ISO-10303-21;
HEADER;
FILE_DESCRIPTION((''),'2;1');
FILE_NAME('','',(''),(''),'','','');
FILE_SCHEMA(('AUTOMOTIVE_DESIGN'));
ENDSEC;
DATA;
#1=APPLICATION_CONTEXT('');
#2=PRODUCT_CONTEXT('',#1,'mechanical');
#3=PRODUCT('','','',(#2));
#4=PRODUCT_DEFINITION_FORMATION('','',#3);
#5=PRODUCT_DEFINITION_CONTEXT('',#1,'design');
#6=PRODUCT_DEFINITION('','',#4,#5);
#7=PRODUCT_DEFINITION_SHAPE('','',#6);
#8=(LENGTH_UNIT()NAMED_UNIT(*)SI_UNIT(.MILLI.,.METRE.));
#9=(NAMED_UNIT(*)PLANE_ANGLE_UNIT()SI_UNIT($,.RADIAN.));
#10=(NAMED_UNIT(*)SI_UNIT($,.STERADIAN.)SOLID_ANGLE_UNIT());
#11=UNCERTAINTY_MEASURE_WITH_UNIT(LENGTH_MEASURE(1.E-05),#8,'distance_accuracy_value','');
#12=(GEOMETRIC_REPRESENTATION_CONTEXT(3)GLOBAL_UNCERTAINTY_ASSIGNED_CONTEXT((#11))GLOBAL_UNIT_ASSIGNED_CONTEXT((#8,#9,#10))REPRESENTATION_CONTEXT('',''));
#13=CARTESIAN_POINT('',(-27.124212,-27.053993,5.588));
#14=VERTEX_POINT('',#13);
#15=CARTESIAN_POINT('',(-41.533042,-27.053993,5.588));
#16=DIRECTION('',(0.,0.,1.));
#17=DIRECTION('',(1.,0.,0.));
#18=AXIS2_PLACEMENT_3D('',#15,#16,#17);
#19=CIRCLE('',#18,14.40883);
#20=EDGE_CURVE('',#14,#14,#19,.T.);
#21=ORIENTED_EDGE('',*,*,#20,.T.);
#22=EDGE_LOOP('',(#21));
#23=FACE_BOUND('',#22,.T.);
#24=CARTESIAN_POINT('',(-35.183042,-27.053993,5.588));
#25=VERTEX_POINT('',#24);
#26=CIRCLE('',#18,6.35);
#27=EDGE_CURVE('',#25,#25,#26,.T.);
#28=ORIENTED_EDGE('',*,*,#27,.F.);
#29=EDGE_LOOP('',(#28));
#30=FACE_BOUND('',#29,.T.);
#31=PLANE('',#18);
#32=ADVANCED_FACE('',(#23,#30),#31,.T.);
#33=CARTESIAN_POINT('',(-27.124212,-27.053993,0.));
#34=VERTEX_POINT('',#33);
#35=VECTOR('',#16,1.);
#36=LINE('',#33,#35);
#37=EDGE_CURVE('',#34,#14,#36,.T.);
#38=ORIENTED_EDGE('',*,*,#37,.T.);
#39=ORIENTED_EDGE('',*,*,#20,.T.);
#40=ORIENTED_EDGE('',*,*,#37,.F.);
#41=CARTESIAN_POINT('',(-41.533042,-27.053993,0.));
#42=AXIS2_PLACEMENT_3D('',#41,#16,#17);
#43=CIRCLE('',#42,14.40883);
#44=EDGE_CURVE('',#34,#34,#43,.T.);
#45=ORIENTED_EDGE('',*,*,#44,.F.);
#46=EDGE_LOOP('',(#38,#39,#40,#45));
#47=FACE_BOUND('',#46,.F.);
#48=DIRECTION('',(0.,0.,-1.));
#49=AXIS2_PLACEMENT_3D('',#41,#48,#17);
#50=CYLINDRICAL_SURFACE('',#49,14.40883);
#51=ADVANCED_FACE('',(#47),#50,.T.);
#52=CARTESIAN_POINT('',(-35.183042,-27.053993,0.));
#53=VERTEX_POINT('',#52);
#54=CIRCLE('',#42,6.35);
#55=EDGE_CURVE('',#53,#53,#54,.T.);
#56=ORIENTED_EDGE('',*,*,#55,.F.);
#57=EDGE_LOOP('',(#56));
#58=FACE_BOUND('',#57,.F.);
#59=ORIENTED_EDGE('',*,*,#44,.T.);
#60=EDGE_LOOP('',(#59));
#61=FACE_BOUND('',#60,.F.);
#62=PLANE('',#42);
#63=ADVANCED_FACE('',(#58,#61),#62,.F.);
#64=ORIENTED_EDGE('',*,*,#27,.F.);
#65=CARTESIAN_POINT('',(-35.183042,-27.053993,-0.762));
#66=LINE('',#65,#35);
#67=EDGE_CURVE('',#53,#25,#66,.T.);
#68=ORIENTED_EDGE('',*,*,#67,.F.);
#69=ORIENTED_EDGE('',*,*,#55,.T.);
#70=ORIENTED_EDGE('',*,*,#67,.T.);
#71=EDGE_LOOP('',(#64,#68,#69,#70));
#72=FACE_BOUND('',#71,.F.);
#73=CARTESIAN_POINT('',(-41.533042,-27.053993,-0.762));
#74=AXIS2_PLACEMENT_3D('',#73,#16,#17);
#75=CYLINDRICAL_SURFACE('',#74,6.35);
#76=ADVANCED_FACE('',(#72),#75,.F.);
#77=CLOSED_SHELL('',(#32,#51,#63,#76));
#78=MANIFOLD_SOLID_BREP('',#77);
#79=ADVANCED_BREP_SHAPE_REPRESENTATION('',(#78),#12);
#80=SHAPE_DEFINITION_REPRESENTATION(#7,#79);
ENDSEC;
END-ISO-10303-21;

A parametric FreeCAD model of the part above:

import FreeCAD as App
import Part
import Sketcher

V = App.Vector
Q = App.Units.Quantity

doc = App.newDocument("Part")
body = doc.addObject("PartDesign::Body", "Body")

sketch1 = body.newObject("Sketcher::SketchObject", "Sketch")
sketch1.AttachmentSupport = (doc.getObject("XY_Plane"), [""])
sketch1.MapMode = "FlatFace"
sketch1.addGeometry(Part.Circle(V(-41.533042, -27.053993, 0), V(0, 0, 1), 14.40883), False)
sketch1.addConstraint([
    Sketcher.Constraint("Diameter", 0, Q("28.81766 mm")),
    Sketcher.Constraint("DistanceX", 0, 3, -1, 1, Q("41.533042 mm")),
    Sketcher.Constraint("DistanceY", 0, 3, -1, 1, Q("27.053993 mm")),
])
pad1 = body.newObject("PartDesign::Pad", "Pad")
pad1.Profile = sketch1
pad1.Length = Q("0.22 in")

sketch2 = body.newObject("Sketcher::SketchObject", "Sketch001")
sketch2.AttachmentSupport = (doc.getObject("XY_Plane"), [""])
sketch2.MapMode = "FlatFace"
sketch2.AttachmentOffset = App.Placement(V(0, 0, 0.22 * 25.4), App.Rotation())
sketch2.addGeometry(Part.Circle(V(-41.533042, -27.053993, 0), V(0, 0, 1), 5.715), False)
sketch2.addConstraint([
    Sketcher.Constraint("Diameter", 0, Q("0.45 in")),
    Sketcher.Constraint("DistanceX", 0, 3, -1, 1, Q("41.533042 mm")),
    Sketcher.Constraint("DistanceY", 0, 3, -1, 1, Q("27.053993 mm")),
])
doc.recompute()
hole = body.newObject("PartDesign::Hole", "Hole")
hole.Profile = sketch2
hole.ThreadType = "None"
hole.Diameter = Q("0.45 in")
hole.DepthType = "ThroughAll"
hole.HoleCutType = "Counterbore"
hole.HoleCutDiameter = Q("0.5 in")
hole.HoleCutDepth = Q("0.25 in")

doc.recompute()
